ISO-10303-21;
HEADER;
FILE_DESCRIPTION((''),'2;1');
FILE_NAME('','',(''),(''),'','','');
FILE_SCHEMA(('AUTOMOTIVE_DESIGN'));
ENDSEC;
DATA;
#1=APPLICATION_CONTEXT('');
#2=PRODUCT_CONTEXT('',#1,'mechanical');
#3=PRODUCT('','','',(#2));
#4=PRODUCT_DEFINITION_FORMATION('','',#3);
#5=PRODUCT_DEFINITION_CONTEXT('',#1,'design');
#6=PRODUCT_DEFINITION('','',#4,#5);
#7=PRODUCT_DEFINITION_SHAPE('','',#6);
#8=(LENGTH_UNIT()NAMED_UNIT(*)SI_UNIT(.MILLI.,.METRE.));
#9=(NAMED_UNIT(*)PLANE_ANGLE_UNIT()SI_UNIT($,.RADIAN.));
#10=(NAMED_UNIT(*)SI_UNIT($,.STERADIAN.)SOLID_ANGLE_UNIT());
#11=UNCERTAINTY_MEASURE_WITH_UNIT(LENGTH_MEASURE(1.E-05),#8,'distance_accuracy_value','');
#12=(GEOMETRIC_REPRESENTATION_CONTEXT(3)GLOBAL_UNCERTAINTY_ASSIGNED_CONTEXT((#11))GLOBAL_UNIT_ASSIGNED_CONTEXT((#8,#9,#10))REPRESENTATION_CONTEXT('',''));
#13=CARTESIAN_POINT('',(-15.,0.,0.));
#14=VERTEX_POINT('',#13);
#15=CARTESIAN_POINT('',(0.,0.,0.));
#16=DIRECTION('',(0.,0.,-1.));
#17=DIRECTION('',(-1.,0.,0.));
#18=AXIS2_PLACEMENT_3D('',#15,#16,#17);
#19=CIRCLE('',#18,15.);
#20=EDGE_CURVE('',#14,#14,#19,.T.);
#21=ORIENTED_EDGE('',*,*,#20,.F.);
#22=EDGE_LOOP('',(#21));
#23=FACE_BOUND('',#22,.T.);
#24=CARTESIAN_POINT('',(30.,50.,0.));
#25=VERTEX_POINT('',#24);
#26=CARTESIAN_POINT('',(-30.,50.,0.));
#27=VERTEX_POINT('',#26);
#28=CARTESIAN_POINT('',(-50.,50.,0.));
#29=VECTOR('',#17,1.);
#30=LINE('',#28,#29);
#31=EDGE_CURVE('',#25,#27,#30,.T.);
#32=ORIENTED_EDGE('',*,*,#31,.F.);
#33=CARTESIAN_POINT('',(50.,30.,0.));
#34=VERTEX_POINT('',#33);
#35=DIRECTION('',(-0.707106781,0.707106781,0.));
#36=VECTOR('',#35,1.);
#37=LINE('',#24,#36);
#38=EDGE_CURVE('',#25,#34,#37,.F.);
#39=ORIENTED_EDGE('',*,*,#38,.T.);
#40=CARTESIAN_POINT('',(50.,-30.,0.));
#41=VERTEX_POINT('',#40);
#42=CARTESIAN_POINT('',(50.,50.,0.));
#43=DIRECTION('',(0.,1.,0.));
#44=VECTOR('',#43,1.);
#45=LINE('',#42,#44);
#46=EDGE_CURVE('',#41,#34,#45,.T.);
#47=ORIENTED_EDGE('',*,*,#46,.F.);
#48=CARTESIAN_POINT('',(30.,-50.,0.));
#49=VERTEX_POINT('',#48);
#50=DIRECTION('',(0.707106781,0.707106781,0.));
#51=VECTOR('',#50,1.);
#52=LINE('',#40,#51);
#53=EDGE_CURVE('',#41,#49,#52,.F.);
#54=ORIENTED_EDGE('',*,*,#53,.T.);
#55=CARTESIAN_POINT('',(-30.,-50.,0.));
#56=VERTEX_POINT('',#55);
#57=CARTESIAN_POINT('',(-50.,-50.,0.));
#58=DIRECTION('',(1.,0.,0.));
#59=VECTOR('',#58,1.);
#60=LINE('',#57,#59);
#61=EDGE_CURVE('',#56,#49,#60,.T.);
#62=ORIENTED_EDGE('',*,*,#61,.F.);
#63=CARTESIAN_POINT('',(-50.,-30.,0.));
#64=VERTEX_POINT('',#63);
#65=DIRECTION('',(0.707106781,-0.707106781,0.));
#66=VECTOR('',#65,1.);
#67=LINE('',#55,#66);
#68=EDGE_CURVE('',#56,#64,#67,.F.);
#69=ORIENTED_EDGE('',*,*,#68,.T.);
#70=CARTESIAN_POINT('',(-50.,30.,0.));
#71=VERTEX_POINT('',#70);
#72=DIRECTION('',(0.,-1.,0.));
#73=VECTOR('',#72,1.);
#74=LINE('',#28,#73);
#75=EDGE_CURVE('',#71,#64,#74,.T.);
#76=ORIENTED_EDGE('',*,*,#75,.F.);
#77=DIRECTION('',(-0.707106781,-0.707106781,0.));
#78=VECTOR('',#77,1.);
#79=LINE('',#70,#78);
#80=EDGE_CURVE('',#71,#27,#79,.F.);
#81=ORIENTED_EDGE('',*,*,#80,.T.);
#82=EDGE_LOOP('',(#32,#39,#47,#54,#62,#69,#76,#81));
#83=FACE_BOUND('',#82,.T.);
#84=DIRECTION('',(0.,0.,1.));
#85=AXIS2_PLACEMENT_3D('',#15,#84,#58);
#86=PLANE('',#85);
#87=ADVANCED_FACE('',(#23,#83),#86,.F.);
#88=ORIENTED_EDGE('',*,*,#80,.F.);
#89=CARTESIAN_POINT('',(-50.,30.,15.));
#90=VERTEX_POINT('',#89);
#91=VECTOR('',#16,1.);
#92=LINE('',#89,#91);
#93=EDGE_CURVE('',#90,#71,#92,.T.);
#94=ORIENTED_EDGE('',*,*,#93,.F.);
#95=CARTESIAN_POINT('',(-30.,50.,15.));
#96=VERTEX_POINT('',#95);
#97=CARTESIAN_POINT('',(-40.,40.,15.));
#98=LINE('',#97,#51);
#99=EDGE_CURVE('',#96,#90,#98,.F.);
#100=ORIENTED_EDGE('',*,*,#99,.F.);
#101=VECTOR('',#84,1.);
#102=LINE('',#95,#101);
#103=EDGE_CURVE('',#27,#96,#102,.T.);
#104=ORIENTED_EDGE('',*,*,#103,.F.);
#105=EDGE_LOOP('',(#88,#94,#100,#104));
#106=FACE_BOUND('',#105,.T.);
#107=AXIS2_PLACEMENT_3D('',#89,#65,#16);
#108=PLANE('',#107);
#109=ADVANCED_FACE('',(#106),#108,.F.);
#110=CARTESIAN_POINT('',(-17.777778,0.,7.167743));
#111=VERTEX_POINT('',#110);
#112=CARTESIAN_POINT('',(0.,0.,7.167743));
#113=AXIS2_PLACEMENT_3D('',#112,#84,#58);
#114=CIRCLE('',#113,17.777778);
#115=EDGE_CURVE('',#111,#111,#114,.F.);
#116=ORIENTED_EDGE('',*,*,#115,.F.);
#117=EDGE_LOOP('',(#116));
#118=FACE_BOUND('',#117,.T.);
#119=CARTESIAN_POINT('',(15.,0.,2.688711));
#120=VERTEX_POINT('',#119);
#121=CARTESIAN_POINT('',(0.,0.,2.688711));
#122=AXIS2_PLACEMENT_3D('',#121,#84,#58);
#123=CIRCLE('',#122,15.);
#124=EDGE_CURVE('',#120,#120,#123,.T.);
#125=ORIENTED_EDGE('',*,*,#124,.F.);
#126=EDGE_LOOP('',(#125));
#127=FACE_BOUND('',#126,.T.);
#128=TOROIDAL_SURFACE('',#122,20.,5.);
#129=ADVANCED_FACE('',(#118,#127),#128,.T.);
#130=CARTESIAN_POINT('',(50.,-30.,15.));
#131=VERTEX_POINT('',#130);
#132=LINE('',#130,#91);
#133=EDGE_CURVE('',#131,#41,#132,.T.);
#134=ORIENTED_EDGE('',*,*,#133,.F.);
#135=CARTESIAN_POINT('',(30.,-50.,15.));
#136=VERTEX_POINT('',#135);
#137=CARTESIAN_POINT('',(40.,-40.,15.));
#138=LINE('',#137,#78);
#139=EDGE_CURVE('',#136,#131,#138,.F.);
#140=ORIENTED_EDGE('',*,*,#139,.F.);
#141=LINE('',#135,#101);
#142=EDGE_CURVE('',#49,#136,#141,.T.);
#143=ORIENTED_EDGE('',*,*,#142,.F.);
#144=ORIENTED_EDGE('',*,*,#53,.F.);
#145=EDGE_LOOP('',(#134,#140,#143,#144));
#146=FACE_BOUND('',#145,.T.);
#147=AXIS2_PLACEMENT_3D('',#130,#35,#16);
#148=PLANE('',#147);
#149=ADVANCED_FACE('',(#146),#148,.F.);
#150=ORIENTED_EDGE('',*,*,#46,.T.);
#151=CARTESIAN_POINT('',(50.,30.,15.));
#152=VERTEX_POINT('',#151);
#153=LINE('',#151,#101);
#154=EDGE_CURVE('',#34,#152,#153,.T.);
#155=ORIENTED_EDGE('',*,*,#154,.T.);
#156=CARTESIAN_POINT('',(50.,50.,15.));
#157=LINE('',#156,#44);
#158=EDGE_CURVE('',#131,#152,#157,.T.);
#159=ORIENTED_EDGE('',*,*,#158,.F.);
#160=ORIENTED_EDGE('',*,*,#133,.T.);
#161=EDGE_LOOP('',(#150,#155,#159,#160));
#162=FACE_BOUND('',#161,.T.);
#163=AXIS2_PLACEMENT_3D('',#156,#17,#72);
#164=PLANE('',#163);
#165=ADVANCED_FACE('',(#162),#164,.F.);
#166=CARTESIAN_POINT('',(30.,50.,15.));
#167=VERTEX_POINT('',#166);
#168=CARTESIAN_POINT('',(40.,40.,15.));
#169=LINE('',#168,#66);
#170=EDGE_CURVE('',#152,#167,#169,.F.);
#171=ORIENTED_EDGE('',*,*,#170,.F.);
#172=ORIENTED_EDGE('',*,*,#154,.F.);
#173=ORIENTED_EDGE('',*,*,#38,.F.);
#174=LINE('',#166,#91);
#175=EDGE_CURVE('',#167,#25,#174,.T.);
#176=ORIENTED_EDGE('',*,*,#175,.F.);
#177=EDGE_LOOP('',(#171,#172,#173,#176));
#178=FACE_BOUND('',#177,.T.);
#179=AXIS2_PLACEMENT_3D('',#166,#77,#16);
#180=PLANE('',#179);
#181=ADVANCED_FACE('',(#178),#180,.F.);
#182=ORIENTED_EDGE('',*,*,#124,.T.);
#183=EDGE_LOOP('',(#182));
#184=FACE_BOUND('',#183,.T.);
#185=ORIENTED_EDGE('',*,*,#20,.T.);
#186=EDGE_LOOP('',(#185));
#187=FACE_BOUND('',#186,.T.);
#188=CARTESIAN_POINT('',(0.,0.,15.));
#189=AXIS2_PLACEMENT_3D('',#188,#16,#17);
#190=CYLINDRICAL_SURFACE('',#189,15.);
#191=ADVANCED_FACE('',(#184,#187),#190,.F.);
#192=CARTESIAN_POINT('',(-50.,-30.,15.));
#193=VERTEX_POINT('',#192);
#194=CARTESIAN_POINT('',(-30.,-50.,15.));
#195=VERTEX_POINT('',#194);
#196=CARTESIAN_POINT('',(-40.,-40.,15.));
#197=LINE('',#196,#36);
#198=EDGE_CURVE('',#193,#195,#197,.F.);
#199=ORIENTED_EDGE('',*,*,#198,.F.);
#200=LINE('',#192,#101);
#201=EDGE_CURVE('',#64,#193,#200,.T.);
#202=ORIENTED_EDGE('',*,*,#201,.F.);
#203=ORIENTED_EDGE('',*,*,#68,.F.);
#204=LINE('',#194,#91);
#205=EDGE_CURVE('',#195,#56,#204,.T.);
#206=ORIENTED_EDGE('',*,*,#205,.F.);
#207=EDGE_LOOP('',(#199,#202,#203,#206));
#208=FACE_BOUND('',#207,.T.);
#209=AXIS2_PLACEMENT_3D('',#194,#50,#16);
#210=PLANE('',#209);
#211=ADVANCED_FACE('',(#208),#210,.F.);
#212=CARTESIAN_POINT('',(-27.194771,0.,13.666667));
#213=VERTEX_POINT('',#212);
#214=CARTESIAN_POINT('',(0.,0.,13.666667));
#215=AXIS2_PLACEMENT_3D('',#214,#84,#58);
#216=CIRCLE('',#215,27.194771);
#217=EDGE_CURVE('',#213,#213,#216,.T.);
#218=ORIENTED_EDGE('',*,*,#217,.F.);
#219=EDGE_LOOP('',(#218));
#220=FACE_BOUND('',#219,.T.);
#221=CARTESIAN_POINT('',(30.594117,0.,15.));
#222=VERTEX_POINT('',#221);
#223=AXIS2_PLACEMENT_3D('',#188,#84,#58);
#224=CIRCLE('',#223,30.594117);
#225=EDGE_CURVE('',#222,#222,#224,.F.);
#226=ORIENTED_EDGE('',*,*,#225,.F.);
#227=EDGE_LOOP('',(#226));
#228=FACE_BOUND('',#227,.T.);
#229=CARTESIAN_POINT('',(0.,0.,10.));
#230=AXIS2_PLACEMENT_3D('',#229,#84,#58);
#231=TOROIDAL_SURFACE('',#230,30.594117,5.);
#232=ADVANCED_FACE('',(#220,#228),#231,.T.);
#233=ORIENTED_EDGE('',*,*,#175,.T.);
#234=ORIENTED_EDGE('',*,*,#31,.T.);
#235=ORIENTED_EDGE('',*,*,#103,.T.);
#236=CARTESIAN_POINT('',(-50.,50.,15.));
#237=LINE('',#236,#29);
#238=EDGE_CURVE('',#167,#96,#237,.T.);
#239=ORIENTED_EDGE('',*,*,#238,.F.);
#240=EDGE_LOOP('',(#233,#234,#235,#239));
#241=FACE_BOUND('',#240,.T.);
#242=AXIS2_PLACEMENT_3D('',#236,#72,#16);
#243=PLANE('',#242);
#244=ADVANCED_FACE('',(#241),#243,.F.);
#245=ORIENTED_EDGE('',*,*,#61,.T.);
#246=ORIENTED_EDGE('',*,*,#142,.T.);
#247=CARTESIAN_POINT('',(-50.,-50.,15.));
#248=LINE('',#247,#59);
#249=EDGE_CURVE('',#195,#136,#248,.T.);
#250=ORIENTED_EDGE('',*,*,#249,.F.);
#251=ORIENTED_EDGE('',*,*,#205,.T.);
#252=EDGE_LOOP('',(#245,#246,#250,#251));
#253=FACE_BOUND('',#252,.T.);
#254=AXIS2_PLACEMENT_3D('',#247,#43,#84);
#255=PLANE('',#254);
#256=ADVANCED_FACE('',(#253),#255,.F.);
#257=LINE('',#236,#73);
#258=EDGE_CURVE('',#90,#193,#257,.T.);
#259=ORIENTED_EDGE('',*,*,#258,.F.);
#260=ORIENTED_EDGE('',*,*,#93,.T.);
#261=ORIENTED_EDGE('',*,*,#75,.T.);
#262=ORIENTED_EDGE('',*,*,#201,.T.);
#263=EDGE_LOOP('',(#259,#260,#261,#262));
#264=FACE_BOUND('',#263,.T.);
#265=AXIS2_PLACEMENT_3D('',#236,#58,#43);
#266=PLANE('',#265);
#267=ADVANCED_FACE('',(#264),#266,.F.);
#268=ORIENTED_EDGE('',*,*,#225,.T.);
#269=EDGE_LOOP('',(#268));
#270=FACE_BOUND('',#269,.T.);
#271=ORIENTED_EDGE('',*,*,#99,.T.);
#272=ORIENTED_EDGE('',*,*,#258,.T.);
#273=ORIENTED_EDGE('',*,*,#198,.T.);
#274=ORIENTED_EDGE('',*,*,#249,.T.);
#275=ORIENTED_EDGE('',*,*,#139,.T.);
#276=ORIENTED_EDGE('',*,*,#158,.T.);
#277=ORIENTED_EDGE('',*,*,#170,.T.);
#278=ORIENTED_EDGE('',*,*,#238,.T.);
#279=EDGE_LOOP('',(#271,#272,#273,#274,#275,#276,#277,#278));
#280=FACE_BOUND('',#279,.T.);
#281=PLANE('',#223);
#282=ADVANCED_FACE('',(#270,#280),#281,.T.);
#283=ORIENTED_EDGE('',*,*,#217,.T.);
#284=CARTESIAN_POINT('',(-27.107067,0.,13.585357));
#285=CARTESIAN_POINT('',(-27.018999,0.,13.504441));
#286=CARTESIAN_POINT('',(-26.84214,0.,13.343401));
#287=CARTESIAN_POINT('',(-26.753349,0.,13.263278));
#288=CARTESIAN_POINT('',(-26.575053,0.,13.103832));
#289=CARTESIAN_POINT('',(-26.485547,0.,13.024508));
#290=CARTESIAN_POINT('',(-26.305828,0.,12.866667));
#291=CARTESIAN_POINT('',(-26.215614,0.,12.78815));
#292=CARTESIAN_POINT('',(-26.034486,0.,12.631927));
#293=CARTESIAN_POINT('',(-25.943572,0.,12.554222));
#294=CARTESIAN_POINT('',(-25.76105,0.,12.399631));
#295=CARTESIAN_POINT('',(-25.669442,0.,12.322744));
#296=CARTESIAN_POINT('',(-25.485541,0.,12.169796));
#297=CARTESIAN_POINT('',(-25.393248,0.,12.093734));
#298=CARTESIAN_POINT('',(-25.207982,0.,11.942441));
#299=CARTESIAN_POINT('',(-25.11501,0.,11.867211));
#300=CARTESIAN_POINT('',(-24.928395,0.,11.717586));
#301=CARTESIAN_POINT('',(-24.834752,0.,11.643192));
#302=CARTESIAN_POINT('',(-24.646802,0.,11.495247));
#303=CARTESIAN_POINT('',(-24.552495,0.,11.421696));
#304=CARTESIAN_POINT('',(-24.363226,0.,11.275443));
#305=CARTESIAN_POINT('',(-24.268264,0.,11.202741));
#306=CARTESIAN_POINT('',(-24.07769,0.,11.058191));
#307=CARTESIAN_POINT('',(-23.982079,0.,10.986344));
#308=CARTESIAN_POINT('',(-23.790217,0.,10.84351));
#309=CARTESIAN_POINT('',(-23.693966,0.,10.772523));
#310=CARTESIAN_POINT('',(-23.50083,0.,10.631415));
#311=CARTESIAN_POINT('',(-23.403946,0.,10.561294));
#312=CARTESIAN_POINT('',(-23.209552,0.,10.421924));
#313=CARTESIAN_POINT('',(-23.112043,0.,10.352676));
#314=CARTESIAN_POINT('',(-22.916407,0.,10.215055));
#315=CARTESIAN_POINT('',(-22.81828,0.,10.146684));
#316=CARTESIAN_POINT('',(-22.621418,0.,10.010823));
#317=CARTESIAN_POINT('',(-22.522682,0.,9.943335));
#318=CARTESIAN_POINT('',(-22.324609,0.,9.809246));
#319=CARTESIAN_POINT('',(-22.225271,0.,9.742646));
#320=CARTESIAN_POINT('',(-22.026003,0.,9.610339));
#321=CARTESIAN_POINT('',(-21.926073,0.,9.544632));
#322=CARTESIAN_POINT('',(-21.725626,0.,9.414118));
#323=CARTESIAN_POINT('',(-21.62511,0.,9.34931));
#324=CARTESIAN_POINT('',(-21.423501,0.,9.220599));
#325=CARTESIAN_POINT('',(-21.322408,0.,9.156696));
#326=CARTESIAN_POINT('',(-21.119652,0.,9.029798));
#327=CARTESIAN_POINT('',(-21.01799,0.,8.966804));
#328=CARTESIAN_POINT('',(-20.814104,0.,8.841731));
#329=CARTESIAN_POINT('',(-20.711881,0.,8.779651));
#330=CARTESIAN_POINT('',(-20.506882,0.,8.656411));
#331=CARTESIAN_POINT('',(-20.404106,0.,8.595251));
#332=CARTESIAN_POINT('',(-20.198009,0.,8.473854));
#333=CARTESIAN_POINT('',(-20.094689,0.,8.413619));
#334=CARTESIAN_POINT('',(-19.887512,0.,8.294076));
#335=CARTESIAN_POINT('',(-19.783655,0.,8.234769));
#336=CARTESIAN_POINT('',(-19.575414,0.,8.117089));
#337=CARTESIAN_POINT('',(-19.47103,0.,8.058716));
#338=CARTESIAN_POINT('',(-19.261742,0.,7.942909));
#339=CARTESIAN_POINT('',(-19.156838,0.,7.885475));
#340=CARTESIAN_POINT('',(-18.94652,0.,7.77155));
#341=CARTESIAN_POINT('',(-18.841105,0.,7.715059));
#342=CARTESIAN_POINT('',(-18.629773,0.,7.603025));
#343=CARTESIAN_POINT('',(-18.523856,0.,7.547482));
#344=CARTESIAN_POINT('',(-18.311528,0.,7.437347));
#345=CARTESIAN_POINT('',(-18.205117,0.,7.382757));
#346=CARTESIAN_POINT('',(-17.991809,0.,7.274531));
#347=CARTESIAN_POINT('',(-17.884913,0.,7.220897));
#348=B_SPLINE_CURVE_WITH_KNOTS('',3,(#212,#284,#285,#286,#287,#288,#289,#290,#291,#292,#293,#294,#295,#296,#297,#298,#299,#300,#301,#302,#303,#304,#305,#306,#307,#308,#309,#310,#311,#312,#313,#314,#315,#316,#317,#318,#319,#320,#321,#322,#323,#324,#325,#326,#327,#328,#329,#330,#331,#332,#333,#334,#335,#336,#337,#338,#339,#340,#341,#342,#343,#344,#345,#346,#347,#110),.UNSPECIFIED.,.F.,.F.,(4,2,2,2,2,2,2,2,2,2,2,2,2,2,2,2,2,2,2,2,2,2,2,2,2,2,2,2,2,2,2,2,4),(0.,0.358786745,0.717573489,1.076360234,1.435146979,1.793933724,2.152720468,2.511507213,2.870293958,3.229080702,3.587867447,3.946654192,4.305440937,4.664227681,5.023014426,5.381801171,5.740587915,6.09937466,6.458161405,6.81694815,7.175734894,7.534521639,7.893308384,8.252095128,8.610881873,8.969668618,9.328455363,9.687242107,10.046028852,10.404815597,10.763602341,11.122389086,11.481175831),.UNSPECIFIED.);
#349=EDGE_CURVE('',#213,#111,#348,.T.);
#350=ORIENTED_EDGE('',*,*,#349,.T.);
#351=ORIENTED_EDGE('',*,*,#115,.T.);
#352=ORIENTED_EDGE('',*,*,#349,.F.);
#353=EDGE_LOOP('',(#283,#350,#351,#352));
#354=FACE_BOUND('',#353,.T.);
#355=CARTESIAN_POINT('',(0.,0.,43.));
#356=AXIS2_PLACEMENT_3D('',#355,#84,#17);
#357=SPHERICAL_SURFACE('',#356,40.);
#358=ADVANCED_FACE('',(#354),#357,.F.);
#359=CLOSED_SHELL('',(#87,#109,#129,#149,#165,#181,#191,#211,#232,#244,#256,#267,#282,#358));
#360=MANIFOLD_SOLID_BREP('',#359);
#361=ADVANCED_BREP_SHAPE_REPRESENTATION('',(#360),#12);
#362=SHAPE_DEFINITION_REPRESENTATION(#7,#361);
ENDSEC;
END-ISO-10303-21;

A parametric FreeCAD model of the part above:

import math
import FreeCAD as App
import Part
import Sketcher
from FreeCAD import Vector
Q = App.Units.Quantity


def edges_at(feature, points):
    """Names of the edges that pass closest to the given points."""
    edges = feature.Shape.Edges
    near = lambda p: min(range(len(edges)), key=lambda i: edges[i].distToShape(Part.Vertex(*p))[0])
    return sorted({f"Edge{near(p) + 1}" for p in points})

doc = App.newDocument("Part")
body = doc.addObject("PartDesign::Body", "Body")

sketch1 = body.newObject("Sketcher::SketchObject", "Sketch")
sketch1.AttachmentSupport = (doc.getObject("XY_Plane"), [""])
sketch1.MapMode = "FlatFace"
sketch1.addGeometry([
    Part.LineSegment(Vector(-50, 50, 0), Vector(-50, -50, 0)),
    Part.LineSegment(Vector(-50, -50, 0), Vector(50, -50, 0)),
    Part.LineSegment(Vector(50, -50, 0), Vector(50, 50, 0)),
    Part.LineSegment(Vector(50, 50, 0), Vector(-50, 50, 0)),
], False)
sketch1.addConstraint([
    Sketcher.Constraint("Coincident", 0, 2, 1, 1),
    Sketcher.Constraint("Coincident", 1, 2, 2, 1),
    Sketcher.Constraint("Coincident", 2, 2, 3, 1),
    Sketcher.Constraint("Coincident", 3, 2, 0, 1),
    Sketcher.Constraint("Vertical", 0),
    Sketcher.Constraint("Horizontal", 1),
    Sketcher.Constraint("Vertical", 2),
    Sketcher.Constraint("Horizontal", 3),
    Sketcher.Constraint("Symmetric", 0, 2, 2, 2, -1, 1),
    Sketcher.Constraint("Equal", 3, 0),
    Sketcher.Constraint("DistanceX", 1, 1, 1, 2, Q("100 mm")),
])
pad1 = body.newObject("PartDesign::Pad", "Pad")
pad1.Profile = sketch1
pad1.Length = 15

sketch2 = body.newObject("Sketcher::SketchObject", "Sketch001")
sketch2.AttachmentSupport = (doc.getObject("XZ_Plane"), [""])
sketch2.MapMode = "FlatFace"
sketch2.addGeometry([
    Part.LineSegment(Vector(0, 3, 0), Vector(0, 83, 0)),
    Part.ArcOfCircle(Part.Circle(Vector(0, 43, 0), Vector(0, 0, 1), 40), math.radians(-90), math.radians(90)),
], False)
sketch2.addConstraint([
    Sketcher.Constraint("Coincident", 0, 1, 1, 1),
    Sketcher.Constraint("Coincident", 1, 2, 0, 2),
    Sketcher.Constraint("Vertical", 0),
    Sketcher.Constraint("PointOnObject", 1, 3, -2),
    Sketcher.Constraint("PointOnObject", 0, 1, -2),
    Sketcher.Constraint("Radius", 1, Q("40 mm")),
    Sketcher.Constraint("DistanceY", -1, 1, 1, 3, Q("43 mm")),
])
groove = body.newObject("PartDesign::Groove", "Groove")
groove.Profile = sketch2
groove.ReferenceAxis = (sketch2, ["V_Axis"])
groove.Angle = 360

sketch3 = body.newObject("Sketcher::SketchObject", "Sketch002")
sketch3.AttachmentSupport = (doc.getObject("XY_Plane"), [""])
sketch3.MapMode = "FlatFace"
sketch3.addGeometry(Part.Circle(Vector(0, 0, 0), Vector(0, 0, 1), 15), False)
sketch3.addConstraint([
    Sketcher.Constraint("Coincident", 0, 3, -1, 1),
    Sketcher.Constraint("Diameter", 0, Q("30 mm")),
])
pocket1 = body.newObject("PartDesign::Pocket", "Pocket")
pocket1.Profile = sketch3
pocket1.Type = "ThroughAll"
pocket1.Reversed = True
doc.recompute()

chamfer = body.newObject("PartDesign::Chamfer", "Chamfer")
chamfer.Base = (pocket1, edges_at(pocket1, [
    (50, -50, 7.5),
    (-50, -50, 7.5),
    (-50, 50, 7.5),
    (50, 50, 7.5),
]))
chamfer.Size = 20
doc.recompute()

fillet = body.newObject("PartDesign::Fillet", "Fillet")
fillet.Base = (chamfer, edges_at(chamfer, [(0, -15, 5.919)]))
fillet.Radius = 5
doc.recompute()

fillet2 = body.newObject("PartDesign::Fillet", "Fillet001")
fillet2.Base = (fillet, edges_at(fillet, [(-28.566, 0, 15)]))
fillet2.Radius = 5

doc.recompute()
